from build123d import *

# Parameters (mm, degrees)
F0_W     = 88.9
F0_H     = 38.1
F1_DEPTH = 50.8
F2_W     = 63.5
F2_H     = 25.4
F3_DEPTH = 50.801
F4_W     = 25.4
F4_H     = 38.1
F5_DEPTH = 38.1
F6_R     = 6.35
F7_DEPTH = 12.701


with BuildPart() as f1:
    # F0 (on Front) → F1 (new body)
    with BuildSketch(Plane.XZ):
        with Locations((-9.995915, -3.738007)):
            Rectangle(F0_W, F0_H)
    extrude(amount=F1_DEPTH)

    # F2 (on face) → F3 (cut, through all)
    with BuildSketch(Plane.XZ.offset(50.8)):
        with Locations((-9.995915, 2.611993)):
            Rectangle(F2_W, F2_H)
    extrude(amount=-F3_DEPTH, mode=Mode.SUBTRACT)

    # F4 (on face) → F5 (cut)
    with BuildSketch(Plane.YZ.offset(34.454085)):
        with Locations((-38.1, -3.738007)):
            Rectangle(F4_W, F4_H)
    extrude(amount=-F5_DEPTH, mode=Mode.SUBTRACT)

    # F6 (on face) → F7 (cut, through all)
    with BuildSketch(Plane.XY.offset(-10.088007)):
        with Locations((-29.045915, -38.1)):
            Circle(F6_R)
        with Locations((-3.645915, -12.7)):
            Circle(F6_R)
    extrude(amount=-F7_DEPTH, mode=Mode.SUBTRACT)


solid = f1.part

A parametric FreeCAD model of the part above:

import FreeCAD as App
import Part
import Sketcher
from FreeCAD import Vector
Q = App.Units.Quantity

doc = App.newDocument("Part")
body = doc.addObject("PartDesign::Body", "Body")

# Sketch on XZ plane
sketch1 = body.newObject("Sketcher::SketchObject", "Sketch")
sketch1.AttachmentSupport = (doc.getObject("XZ_Plane"), [""])
sketch1.MapMode = "FlatFace"
sketch1.addGeometry([
    Part.LineSegment(Vector(-54, 15, 0), Vector(-54, -23, 0)),
    Part.LineSegment(Vector(-54, -23, 0), Vector(34, -23, 0)),
    Part.LineSegment(Vector(34, -23, 0), Vector(34, 15, 0)),
    Part.LineSegment(Vector(34, 15, 0), Vector(-54, 15, 0)),
], False)
sketch1.addConstraint([
    Sketcher.Constraint("Coincident", 0, 2, 1, 1),
    Sketcher.Constraint("Coincident", 1, 2, 2, 1),
    Sketcher.Constraint("Coincident", 2, 2, 3, 1),
    Sketcher.Constraint("Coincident", 3, 2, 0, 1),
    Sketcher.Constraint("Vertical", 0),
    Sketcher.Constraint("Horizontal", 1),
    Sketcher.Constraint("Vertical", 2),
    Sketcher.Constraint("Horizontal", 3),
    Sketcher.Constraint("DistanceX", 1, 1, 1, 2, Q("3.5 in")),
    Sketcher.Constraint("DistanceY", 0, 2, 0, 1, Q("1.5 in")),
    Sketcher.Constraint("DistanceX", 0, 2, -1, 1, Q("54.445915 mm")),
    Sketcher.Constraint("DistanceY", 0, 2, -1, 1, Q("22.788007 mm")),
])
pad1 = body.newObject("PartDesign::Pad", "Pad")
pad1.Profile = sketch1
pad1.Length = Q("2 in")

# Sketch on XZ plane
sketch2 = body.newObject("Sketcher::SketchObject", "Sketch001")
sketch2.AttachmentSupport = (doc.getObject("XZ_Plane"), [""])
sketch2.MapMode = "FlatFace"
sketch2.AttachmentOffset = App.Placement(Vector(0, 0, 2 * 25.4), App.Rotation())
sketch2.addGeometry([
    Part.LineSegment(Vector(-42, 15, 0), Vector(-42, -10, 0)),
    Part.LineSegment(Vector(-42, -10, 0), Vector(22, -10, 0)),
    Part.LineSegment(Vector(22, -10, 0), Vector(22, 15, 0)),
    Part.LineSegment(Vector(22, 15, 0), Vector(-42, 15, 0)),
], False)
sketch2.addConstraint([
    Sketcher.Constraint("Coincident", 0, 2, 1, 1),
    Sketcher.Constraint("Coincident", 1, 2, 2, 1),
    Sketcher.Constraint("Coincident", 2, 2, 3, 1),
    Sketcher.Constraint("Coincident", 3, 2, 0, 1),
    Sketcher.Constraint("Vertical", 0),
    Sketcher.Constraint("Horizontal", 1),
    Sketcher.Constraint("Vertical", 2),
    Sketcher.Constraint("Horizontal", 3),
    Sketcher.Constraint("DistanceY", 0, 2, 0, 1, Q("1 in")),
    Sketcher.Constraint("DistanceX", 1, 1, 1, 2, Q("2.5 in")),
    Sketcher.Constraint("DistanceX", 0, 2, -1, 1, Q("41.745915 mm")),
    Sketcher.Constraint("DistanceY", 0, 2, -1, 1, Q("10.088007 mm")),
])
pocket1 = body.newObject("PartDesign::Pocket", "Pocket")
pocket1.Profile = sketch2
pocket1.Type = "ThroughAll"

# Sketch on YZ plane
sketch3 = body.newObject("Sketcher::SketchObject", "Sketch002")
sketch3.AttachmentSupport = (doc.getObject("YZ_Plane"), [""])
sketch3.MapMode = "FlatFace"
sketch3.AttachmentOffset = App.Placement(Vector(0, 0, 34.454085), App.Rotation())
sketch3.addGeometry([
    Part.LineSegment(Vector(-51, 15, 0), Vector(-51, -23, 0)),
    Part.LineSegment(Vector(-51, -23, 0), Vector(-25, -23, 0)),
    Part.LineSegment(Vector(-25, -23, 0), Vector(-25, 15, 0)),
    Part.LineSegment(Vector(-25, 15, 0), Vector(-51, 15, 0)),
], False)
sketch3.addConstraint([
    Sketcher.Constraint("Coincident", 0, 2, 1, 1),
    Sketcher.Constraint("Coincident", 1, 2, 2, 1),
    Sketcher.Constraint("Coincident", 2, 2, 3, 1),
    Sketcher.Constraint("Coincident", 3, 2, 0, 1),
    Sketcher.Constraint("Vertical", 0),
    Sketcher.Constraint("Horizontal", 1),
    Sketcher.Constraint("Vertical", 2),
    Sketcher.Constraint("Horizontal", 3),
    Sketcher.Constraint("DistanceX", 1, 1, 1, 2, Q("1 in")),
    Sketcher.Constraint("DistanceY", 0, 2, 0, 1, Q("1.5 in")),
    Sketcher.Constraint("DistanceX", 0, 2, -1, 1, Q("2 in")),
    Sketcher.Constraint("DistanceY", 0, 2, -1, 1, Q("22.788007 mm")),
])
pocket2 = body.newObject("PartDesign::Pocket", "Pocket001")
pocket2.Profile = sketch3
pocket2.Length = Q("1.5 in")

# Sketch on XY plane
sketch4 = body.newObject("Sketcher::SketchObject", "Sketch003")
sketch4.AttachmentSupport = (doc.getObject("XY_Plane"), [""])
sketch4.MapMode = "FlatFace"
sketch4.AttachmentOffset = App.Placement(Vector(0, 0, -10.088007), App.Rotation())
sketch4.addGeometry([
    Part.Circle(Vector(-29, -38, 0), Vector(0, 0, 1), 6),
    Part.Circle(Vector(-4, -13, 0), Vector(0, 0, 1), 6),
], False)
sketch4.addConstraint([
    Sketcher.Constraint("Equal", 0, 1),
    Sketcher.Constraint("Diameter", 0, Q("0.5 in")),
    Sketcher.Constraint("DistanceX", 0, 3, 1, 3, Q("1 in")),
    Sketcher.Constraint("DistanceY", 0, 3, 1, 3, Q("1 in")),
    Sketcher.Constraint("DistanceY", 0, 3, -1, 1, Q("1.5 in")),
    Sketcher.Constraint("DistanceX", 0, 3, -1, 1, Q("29.045915 mm")),
])
pocket3 = body.newObject("PartDesign::Pocket", "Pocket002")
pocket3.Profile = sketch4
pocket3.Type = "ThroughAll"

doc.recompute()
